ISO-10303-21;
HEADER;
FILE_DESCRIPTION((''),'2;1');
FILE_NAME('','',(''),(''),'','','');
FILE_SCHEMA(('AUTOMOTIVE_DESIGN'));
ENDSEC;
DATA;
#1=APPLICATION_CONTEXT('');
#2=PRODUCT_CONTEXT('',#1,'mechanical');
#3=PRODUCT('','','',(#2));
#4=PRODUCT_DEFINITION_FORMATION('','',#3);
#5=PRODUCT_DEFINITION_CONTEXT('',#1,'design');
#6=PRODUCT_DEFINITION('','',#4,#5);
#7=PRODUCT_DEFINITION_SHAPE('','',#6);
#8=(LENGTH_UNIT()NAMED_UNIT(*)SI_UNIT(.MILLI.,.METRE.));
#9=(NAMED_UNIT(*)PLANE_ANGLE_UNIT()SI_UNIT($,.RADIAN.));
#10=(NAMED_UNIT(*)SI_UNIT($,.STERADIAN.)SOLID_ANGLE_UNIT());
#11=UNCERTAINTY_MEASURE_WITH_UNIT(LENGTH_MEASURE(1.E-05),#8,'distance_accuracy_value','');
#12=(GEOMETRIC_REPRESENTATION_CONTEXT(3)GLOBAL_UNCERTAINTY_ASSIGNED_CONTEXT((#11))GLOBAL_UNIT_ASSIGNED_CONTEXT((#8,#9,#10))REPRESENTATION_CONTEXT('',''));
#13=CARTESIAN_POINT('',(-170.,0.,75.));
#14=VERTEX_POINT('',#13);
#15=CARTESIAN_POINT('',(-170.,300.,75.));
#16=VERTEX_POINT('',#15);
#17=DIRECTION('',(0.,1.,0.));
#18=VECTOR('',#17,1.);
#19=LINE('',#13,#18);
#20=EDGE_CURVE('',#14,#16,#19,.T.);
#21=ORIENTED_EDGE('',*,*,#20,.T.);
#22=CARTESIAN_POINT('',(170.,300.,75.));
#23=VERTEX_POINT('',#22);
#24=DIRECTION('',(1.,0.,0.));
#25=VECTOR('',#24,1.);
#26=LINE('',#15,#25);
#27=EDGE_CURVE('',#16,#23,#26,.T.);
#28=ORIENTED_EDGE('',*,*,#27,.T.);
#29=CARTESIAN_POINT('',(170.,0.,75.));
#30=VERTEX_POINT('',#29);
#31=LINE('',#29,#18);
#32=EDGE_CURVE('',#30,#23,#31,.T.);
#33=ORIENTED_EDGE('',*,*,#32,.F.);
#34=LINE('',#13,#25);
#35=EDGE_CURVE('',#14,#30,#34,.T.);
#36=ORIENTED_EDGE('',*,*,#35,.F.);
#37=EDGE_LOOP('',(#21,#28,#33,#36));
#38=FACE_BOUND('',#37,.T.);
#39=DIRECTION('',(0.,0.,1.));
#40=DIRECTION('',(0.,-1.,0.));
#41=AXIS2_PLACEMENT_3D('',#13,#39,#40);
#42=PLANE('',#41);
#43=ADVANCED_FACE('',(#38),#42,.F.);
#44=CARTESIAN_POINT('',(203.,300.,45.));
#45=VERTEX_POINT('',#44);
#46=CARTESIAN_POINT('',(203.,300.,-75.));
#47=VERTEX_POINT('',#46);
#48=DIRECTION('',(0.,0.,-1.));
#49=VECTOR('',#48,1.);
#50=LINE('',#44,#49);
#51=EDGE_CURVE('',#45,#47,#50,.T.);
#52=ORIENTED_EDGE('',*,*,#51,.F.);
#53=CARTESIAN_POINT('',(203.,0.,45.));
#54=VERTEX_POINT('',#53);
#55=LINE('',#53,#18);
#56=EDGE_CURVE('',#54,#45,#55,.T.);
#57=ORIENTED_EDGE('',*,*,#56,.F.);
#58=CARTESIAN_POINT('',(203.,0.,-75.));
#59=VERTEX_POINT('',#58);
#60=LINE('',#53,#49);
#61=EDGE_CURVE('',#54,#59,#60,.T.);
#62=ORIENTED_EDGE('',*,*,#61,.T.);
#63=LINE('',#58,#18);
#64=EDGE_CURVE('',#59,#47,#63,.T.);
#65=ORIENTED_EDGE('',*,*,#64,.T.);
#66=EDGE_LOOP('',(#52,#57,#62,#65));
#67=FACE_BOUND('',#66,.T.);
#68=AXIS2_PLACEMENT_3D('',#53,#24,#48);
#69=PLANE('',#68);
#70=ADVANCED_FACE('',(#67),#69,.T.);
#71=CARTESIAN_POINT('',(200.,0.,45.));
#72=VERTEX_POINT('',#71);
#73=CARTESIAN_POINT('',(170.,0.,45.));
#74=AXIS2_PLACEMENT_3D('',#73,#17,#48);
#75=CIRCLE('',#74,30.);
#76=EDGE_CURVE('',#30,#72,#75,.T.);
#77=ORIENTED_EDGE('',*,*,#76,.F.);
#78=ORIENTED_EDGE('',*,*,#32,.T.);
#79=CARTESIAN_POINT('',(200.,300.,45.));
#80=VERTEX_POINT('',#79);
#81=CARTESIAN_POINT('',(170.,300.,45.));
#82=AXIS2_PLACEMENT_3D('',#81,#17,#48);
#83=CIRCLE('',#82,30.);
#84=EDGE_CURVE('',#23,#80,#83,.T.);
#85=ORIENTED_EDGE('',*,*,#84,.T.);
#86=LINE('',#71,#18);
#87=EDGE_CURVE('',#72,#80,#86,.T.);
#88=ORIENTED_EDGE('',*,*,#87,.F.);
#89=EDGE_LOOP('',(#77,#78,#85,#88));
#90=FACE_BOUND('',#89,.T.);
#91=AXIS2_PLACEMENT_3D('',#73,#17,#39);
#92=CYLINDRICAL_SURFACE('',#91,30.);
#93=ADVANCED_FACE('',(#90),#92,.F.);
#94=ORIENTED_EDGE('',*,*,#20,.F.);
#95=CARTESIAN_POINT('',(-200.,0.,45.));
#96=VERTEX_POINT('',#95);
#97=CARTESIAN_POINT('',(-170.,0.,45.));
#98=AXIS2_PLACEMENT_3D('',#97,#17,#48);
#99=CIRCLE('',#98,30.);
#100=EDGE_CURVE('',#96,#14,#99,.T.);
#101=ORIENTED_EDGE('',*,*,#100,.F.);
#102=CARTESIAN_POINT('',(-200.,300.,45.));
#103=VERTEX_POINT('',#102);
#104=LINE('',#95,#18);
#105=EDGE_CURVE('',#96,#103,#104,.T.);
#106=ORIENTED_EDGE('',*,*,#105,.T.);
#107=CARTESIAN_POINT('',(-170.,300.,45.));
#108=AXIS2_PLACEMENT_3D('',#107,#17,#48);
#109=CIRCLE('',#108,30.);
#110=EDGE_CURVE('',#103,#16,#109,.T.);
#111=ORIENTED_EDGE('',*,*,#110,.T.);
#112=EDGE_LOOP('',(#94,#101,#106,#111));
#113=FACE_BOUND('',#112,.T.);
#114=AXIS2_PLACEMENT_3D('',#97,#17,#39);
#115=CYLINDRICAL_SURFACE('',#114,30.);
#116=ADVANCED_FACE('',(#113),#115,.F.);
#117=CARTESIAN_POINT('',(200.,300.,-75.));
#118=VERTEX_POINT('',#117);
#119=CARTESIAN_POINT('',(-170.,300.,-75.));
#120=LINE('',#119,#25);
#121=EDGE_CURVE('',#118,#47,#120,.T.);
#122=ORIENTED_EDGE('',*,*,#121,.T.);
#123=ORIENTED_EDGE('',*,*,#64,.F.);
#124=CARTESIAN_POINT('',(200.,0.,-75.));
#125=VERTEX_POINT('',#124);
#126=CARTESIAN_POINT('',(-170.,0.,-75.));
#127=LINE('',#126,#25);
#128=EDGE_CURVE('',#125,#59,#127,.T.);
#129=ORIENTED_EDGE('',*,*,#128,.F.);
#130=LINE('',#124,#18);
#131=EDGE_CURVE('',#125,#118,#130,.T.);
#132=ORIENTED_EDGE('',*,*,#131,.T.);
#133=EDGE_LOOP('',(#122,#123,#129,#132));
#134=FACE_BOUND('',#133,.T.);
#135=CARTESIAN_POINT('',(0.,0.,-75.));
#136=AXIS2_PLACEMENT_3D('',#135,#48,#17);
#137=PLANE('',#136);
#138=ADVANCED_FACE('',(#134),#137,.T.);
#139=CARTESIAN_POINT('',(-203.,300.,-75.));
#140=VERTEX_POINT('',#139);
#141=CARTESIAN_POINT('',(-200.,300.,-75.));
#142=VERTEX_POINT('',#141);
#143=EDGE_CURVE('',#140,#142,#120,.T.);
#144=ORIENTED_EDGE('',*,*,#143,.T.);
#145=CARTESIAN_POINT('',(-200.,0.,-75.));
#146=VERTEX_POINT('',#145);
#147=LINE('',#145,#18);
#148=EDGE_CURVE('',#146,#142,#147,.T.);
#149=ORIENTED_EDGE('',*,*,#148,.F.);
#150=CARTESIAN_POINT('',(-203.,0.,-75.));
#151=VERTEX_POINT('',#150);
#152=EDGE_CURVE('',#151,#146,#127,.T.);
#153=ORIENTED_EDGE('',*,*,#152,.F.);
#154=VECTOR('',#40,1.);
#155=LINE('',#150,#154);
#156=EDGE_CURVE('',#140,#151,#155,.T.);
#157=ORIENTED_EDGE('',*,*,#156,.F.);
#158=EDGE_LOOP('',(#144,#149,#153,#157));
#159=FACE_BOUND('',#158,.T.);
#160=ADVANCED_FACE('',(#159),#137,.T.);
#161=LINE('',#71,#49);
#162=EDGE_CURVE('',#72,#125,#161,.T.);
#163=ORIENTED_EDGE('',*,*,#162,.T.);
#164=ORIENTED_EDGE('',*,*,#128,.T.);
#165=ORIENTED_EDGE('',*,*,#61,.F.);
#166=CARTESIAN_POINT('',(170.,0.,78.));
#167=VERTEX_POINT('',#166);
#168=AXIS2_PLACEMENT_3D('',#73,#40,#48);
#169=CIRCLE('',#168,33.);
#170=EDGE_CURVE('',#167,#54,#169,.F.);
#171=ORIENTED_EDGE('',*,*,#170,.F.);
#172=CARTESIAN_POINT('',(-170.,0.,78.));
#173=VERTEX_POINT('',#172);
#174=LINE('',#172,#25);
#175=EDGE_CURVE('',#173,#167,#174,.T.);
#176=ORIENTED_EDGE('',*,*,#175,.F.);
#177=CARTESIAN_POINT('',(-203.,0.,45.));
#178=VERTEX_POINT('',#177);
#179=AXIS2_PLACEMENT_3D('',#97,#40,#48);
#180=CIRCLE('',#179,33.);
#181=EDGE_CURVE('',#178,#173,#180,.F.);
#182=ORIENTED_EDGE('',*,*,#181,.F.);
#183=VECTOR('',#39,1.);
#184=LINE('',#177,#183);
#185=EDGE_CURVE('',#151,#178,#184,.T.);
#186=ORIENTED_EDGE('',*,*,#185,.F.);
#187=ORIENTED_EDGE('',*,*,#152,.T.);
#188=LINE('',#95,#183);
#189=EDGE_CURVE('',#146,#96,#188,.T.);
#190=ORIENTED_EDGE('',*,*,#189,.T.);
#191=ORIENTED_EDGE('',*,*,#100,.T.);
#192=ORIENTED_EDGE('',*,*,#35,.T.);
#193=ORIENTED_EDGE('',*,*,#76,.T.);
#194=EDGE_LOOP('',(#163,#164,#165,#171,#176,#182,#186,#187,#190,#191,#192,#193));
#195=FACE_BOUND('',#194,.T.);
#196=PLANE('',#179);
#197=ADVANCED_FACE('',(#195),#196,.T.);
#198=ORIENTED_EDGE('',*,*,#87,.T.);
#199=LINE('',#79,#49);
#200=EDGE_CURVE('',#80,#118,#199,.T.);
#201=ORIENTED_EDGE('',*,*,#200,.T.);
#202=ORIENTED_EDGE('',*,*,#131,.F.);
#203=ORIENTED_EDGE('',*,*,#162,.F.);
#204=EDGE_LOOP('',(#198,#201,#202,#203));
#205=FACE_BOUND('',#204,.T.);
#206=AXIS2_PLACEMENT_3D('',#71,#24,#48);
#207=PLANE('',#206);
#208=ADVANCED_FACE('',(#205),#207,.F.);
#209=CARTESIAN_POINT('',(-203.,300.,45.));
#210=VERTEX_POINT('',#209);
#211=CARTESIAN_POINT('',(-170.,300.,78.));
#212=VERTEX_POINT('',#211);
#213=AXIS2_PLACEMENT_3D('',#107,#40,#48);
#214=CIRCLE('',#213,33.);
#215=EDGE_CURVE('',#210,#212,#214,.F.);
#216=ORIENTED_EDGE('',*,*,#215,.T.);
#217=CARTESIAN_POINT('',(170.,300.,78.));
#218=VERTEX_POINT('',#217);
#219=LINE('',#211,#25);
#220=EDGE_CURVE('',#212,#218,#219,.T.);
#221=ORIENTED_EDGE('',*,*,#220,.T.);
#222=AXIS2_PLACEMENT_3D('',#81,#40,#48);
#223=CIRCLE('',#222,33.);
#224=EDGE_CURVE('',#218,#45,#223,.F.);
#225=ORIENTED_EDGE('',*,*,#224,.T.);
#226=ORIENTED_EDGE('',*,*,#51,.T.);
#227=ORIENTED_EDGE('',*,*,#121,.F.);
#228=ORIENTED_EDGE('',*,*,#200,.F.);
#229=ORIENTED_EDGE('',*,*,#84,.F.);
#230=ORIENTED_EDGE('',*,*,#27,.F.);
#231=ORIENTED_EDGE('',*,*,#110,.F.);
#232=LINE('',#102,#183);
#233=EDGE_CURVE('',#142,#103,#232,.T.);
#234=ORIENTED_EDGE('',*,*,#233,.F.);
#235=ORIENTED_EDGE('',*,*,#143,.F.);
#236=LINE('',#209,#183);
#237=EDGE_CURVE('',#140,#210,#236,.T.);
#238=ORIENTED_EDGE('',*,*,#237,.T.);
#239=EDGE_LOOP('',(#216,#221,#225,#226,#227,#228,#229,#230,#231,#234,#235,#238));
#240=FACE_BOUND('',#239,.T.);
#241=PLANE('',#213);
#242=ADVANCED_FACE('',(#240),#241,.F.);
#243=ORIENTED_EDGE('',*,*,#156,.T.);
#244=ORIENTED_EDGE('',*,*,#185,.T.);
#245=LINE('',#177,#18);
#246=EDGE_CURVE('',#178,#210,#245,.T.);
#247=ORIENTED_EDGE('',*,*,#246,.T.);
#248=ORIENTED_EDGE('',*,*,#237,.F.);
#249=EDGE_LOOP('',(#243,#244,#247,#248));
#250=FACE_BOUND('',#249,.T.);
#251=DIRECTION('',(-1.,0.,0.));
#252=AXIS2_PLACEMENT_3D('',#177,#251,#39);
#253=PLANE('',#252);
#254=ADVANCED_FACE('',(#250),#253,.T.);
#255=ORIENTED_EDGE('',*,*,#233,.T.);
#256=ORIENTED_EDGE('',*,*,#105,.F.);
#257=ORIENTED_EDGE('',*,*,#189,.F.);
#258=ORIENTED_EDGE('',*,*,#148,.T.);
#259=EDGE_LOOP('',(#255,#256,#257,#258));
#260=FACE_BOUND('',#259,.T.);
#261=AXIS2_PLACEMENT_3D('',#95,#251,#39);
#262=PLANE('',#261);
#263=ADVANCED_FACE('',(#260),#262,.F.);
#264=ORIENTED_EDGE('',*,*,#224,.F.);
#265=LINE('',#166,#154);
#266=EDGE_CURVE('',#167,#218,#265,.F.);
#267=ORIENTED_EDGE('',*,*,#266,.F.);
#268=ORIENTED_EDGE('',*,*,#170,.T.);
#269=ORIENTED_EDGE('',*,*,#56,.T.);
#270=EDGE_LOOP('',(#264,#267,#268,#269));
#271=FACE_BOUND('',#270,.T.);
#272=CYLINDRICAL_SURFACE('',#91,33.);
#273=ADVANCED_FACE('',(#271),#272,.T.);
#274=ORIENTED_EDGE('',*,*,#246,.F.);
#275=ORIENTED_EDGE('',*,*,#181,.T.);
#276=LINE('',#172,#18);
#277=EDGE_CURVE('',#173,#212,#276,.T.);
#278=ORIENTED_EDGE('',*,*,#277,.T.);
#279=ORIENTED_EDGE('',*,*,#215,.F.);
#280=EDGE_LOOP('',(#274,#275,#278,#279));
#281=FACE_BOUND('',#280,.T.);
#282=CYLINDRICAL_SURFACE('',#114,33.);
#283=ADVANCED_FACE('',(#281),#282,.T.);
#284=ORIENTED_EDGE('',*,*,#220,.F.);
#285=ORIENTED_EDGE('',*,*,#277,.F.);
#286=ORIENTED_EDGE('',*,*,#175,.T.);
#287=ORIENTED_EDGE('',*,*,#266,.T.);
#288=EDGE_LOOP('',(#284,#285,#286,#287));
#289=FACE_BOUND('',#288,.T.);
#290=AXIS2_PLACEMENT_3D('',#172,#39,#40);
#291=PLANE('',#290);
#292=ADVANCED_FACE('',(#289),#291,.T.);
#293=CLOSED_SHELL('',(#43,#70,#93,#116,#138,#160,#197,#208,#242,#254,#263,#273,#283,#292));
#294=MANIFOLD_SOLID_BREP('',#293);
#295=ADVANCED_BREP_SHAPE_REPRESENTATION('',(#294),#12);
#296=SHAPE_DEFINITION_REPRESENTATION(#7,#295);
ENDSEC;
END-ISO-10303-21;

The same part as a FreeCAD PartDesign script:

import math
import FreeCAD as App
import Part
import Sketcher
from FreeCAD import Vector
Q = App.Units.Quantity

doc = App.newDocument("Part")
body = doc.addObject("PartDesign::Body", "Body")

sketch1 = body.newObject("Sketcher::SketchObject", "Sketch")
sketch1.AttachmentSupport = (doc.getObject("XZ_Plane"), [""])
sketch1.MapMode = "FlatFace"
sketch1.addGeometry(Part.LineSegment(Vector(-170, 78, 0), Vector(170, 78, 0)), False)
sketch1.addGeometry(Part.ArcOfCircle(Part.Circle(Vector(170, 45, 0), Vector(0, 0, 1), 33), math.radians(0), math.radians(90)), False)
sketch1.addGeometry(Part.LineSegment(Vector(203, 45, 0), Vector(203, -78, 0)), False)
sketch1.addGeometry(Part.LineSegment(Vector(203, -78, 0), Vector(-203, -78, 0)), False)
sketch1.addGeometry(Part.LineSegment(Vector(-203, -78, 0), Vector(-203, 45, 0)), False)
sketch1.addGeometry(Part.ArcOfCircle(Part.Circle(Vector(-170, 45, 0), Vector(0, 0, 1), 33), math.radians(90), math.radians(180)), False)
sketch1.addGeometry(Part.LineSegment(Vector(170, 75, 0), Vector(-170, 75, 0)), False)
sketch1.addGeometry(Part.ArcOfCircle(Part.Circle(Vector(-170, 45, 0), Vector(0, 0, 1), 30), math.radians(90), math.radians(180)), False)
sketch1.addGeometry(Part.LineSegment(Vector(-200, 45, 0), Vector(-200, -75, 0)), False)
sketch1.addGeometry(Part.LineSegment(Vector(-200, -75, 0), Vector(200, -75, 0)), False)
sketch1.addGeometry(Part.LineSegment(Vector(200, -75, 0), Vector(200, 45, 0)), False)
sketch1.addGeometry(Part.ArcOfCircle(Part.Circle(Vector(170, 45, 0), Vector(0, 0, 1), 30), math.radians(0), math.radians(90)), False)
sketch1.addConstraint(Sketcher.Constraint("Tangent", 0, 2, 1, 2))
sketch1.addConstraint(Sketcher.Constraint("Tangent", 1, 1, 2, 1))
sketch1.addConstraint(Sketcher.Constraint("Coincident", 2, 2, 3, 1))
sketch1.addConstraint(Sketcher.Constraint("Coincident", 3, 2, 4, 1))
sketch1.addConstraint(Sketcher.Constraint("Tangent", 4, 2, 5, 2))
sketch1.addConstraint(Sketcher.Constraint("Tangent", 5, 1, 0, 1))
sketch1.addConstraint(Sketcher.Constraint("Tangent", 6, 2, 7, 1))
sketch1.addConstraint(Sketcher.Constraint("Tangent", 7, 2, 8, 1))
sketch1.addConstraint(Sketcher.Constraint("Coincident", 8, 2, 9, 1))
sketch1.addConstraint(Sketcher.Constraint("Coincident", 9, 2, 10, 1))
sketch1.addConstraint(Sketcher.Constraint("Tangent", 10, 2, 11, 1))
sketch1.addConstraint(Sketcher.Constraint("Tangent", 11, 2, 6, 1))
sketch1.addConstraint(Sketcher.Constraint("Horizontal", 0))
sketch1.addConstraint(Sketcher.Constraint("Vertical", 2))
sketch1.addConstraint(Sketcher.Constraint("Horizontal", 3))
sketch1.addConstraint(Sketcher.Constraint("Vertical", 4))
sketch1.addConstraint(Sketcher.Constraint("Horizontal", 6))
sketch1.addConstraint(Sketcher.Constraint("Vertical", 8))
sketch1.addConstraint(Sketcher.Constraint("Horizontal", 9))
sketch1.addConstraint(Sketcher.Constraint("Vertical", 10))
sketch1.addConstraint(Sketcher.Constraint("Coincident", 7, 3, 5, 3))
sketch1.addConstraint(Sketcher.Constraint("Coincident", 11, 3, 1, 3))
sketch1.addConstraint(Sketcher.Constraint("Equal", 1, 5))
sketch1.addConstraint(Sketcher.Constraint("Radius", 1, Q("33 mm")))
sketch1.addConstraint(Sketcher.Constraint("Radius", 7, Q("30 mm")))
sketch1.addConstraint(Sketcher.Constraint("DistanceX", 0, 1, 0, 2, Q("340 mm")))
sketch1.addConstraint(Sketcher.Constraint("DistanceY", 2, 2, 2, 1, Q("123 mm")))
sketch1.addConstraint(Sketcher.Constraint("DistanceY", 8, 2, 8, 1, Q("120 mm")))
sketch1.addConstraint(Sketcher.Constraint("DistanceX", -1, 1, 1, 3, Q("170 mm")))
sketch1.addConstraint(Sketcher.Constraint("DistanceY", -1, 1, 1, 3, Q("45 mm")))

sketch2 = body.newObject("Sketcher::SketchObject", "Sketch001")
sketch2.AttachmentSupport = (doc.getObject("XY_Plane"), [""])
sketch2.MapMode = "FlatFace"
sketch2.addGeometry(Part.LineSegment(Vector(0, 0, 0), Vector(0, 300, 0)), False)
sketch2.addConstraint(Sketcher.Constraint("Vertical", 0))
sketch2.addConstraint(Sketcher.Constraint("Coincident", 0, 1, -1, 1))
sketch2.addConstraint(Sketcher.Constraint("DistanceY", 0, 1, 0, 2, Q("300 mm")))
doc.recompute()

additivepipe = body.newObject("PartDesign::AdditivePipe", "AdditivePipe")
additivepipe.Profile = sketch1
additivepipe.Spine = (sketch2, ["Edge1"])

sketch3 = body.newObject("Sketcher::SketchObject", "Sketch002")
sketch3.AttachmentSupport = (doc.getObject("XY_Plane"), [""])
sketch3.MapMode = "FlatFace"
sketch3.AttachmentOffset = App.Placement(Vector(0, 0, -78), App.Rotation())
sketch3.addGeometry(Part.LineSegment(Vector(275, 382, 0), Vector(275, -696, 0)), False)
sketch3.addGeometry(Part.LineSegment(Vector(275, -696, 0), Vector(-448, -696, 0)), False)
sketch3.addGeometry(Part.LineSegment(Vector(-448, -696, 0), Vector(-448, 382, 0)), False)
sketch3.addGeometry(Part.LineSegment(Vector(-448, 382, 0), Vector(275, 382, 0)), False)
sketch3.addConstraint(Sketcher.Constraint("Coincident", 0, 2, 1, 1))
sketch3.addConstraint(Sketcher.Constraint("Coincident", 1, 2, 2, 1))
sketch3.addConstraint(Sketcher.Constraint("Coincident", 2, 2, 3, 1))
sketch3.addConstraint(Sketcher.Constraint("Coincident", 3, 2, 0, 1))
sketch3.addConstraint(Sketcher.Constraint("Vertical", 0))
sketch3.addConstraint(Sketcher.Constraint("Horizontal", 1))
sketch3.addConstraint(Sketcher.Constraint("Vertical", 2))
sketch3.addConstraint(Sketcher.Constraint("Horizontal", 3))
sketch3.addConstraint(Sketcher.Constraint("DistanceY", 0, 2, 0, 1, Q("1077.767689 mm")))
sketch3.addConstraint(Sketcher.Constraint("DistanceX", 1, 2, 1, 1, Q("722.984553 mm")))
sketch3.addConstraint(Sketcher.Constraint("DistanceX", 1, 2, -1, 1, Q("447.768729 mm")))
sketch3.addConstraint(Sketcher.Constraint("DistanceY", 0, 2, -1, 1, Q("695.959342 mm")))
pocket1 = body.newObject("PartDesign::Pocket", "Pocket")
pocket1.Profile = sketch3
pocket1.Length = 3
pocket1.Reversed = True

doc.recompute()
